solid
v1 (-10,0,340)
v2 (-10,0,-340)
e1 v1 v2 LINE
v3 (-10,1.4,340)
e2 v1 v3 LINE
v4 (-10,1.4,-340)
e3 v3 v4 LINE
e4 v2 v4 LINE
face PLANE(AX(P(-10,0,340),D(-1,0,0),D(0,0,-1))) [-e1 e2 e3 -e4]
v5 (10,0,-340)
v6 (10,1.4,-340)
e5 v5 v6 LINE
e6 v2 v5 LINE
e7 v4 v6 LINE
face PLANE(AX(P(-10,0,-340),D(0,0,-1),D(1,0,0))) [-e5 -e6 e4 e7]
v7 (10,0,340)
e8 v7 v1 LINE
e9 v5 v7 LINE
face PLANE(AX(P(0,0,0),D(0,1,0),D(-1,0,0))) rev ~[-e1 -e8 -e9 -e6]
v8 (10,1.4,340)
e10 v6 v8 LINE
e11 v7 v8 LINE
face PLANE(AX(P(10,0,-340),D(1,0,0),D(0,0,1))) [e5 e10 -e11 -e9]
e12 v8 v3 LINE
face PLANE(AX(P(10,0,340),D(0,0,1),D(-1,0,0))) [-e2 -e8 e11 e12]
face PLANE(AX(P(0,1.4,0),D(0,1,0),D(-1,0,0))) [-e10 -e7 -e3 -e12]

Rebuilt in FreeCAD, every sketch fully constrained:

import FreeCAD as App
import Part
import Sketcher
from FreeCAD import Vector


def add_polygon(sketch, points):
    """Adds a closed chain of lines whose ends are joined by coincident constraints."""
    first, n = sketch.GeometryCount, len(points)
    for a, b in zip(points, points[1:] + points[:1]):
        sketch.addGeometry(Part.LineSegment(App.Vector(*a, 0), App.Vector(*b, 0)), False)
    for i in range(n):
        sketch.addConstraint(Sketcher.Constraint("Coincident", first + i, 2, first + (i + 1) % n, 1))

doc = App.newDocument("Part")
body = doc.addObject("PartDesign::Body", "Body")

sketch1 = body.newObject("Sketcher::SketchObject", "Sketch")
sketch1.AttachmentSupport = (doc.getObject("XZ_Plane"), [""])
sketch1.MapMode = "FlatFace"
add_polygon(sketch1, [(-10, 340), (10, 340), (10, -340), (-10, -340)])
sketch1.addConstraint(Sketcher.Constraint("Horizontal", 0))
sketch1.addConstraint(Sketcher.Constraint("Vertical", 1))
sketch1.addConstraint(Sketcher.Constraint("Horizontal", 2))
sketch1.addConstraint(Sketcher.Constraint("Vertical", 3))
sketch1.addConstraint(Sketcher.Constraint("Symmetric", 0, 2, 2, 2, -1, 1))
sketch1.addConstraint(Sketcher.Constraint("DistanceX", 0, 1, 0, 2, 20.0))
sketch1.addConstraint(Sketcher.Constraint("DistanceY", 1, 2, 1, 1, 680.0))
pad1 = body.newObject("PartDesign::Pad", "Pad")
pad1.Profile = sketch1
pad1.Length = 1.4
pad1.Reversed = True

doc.recompute()
